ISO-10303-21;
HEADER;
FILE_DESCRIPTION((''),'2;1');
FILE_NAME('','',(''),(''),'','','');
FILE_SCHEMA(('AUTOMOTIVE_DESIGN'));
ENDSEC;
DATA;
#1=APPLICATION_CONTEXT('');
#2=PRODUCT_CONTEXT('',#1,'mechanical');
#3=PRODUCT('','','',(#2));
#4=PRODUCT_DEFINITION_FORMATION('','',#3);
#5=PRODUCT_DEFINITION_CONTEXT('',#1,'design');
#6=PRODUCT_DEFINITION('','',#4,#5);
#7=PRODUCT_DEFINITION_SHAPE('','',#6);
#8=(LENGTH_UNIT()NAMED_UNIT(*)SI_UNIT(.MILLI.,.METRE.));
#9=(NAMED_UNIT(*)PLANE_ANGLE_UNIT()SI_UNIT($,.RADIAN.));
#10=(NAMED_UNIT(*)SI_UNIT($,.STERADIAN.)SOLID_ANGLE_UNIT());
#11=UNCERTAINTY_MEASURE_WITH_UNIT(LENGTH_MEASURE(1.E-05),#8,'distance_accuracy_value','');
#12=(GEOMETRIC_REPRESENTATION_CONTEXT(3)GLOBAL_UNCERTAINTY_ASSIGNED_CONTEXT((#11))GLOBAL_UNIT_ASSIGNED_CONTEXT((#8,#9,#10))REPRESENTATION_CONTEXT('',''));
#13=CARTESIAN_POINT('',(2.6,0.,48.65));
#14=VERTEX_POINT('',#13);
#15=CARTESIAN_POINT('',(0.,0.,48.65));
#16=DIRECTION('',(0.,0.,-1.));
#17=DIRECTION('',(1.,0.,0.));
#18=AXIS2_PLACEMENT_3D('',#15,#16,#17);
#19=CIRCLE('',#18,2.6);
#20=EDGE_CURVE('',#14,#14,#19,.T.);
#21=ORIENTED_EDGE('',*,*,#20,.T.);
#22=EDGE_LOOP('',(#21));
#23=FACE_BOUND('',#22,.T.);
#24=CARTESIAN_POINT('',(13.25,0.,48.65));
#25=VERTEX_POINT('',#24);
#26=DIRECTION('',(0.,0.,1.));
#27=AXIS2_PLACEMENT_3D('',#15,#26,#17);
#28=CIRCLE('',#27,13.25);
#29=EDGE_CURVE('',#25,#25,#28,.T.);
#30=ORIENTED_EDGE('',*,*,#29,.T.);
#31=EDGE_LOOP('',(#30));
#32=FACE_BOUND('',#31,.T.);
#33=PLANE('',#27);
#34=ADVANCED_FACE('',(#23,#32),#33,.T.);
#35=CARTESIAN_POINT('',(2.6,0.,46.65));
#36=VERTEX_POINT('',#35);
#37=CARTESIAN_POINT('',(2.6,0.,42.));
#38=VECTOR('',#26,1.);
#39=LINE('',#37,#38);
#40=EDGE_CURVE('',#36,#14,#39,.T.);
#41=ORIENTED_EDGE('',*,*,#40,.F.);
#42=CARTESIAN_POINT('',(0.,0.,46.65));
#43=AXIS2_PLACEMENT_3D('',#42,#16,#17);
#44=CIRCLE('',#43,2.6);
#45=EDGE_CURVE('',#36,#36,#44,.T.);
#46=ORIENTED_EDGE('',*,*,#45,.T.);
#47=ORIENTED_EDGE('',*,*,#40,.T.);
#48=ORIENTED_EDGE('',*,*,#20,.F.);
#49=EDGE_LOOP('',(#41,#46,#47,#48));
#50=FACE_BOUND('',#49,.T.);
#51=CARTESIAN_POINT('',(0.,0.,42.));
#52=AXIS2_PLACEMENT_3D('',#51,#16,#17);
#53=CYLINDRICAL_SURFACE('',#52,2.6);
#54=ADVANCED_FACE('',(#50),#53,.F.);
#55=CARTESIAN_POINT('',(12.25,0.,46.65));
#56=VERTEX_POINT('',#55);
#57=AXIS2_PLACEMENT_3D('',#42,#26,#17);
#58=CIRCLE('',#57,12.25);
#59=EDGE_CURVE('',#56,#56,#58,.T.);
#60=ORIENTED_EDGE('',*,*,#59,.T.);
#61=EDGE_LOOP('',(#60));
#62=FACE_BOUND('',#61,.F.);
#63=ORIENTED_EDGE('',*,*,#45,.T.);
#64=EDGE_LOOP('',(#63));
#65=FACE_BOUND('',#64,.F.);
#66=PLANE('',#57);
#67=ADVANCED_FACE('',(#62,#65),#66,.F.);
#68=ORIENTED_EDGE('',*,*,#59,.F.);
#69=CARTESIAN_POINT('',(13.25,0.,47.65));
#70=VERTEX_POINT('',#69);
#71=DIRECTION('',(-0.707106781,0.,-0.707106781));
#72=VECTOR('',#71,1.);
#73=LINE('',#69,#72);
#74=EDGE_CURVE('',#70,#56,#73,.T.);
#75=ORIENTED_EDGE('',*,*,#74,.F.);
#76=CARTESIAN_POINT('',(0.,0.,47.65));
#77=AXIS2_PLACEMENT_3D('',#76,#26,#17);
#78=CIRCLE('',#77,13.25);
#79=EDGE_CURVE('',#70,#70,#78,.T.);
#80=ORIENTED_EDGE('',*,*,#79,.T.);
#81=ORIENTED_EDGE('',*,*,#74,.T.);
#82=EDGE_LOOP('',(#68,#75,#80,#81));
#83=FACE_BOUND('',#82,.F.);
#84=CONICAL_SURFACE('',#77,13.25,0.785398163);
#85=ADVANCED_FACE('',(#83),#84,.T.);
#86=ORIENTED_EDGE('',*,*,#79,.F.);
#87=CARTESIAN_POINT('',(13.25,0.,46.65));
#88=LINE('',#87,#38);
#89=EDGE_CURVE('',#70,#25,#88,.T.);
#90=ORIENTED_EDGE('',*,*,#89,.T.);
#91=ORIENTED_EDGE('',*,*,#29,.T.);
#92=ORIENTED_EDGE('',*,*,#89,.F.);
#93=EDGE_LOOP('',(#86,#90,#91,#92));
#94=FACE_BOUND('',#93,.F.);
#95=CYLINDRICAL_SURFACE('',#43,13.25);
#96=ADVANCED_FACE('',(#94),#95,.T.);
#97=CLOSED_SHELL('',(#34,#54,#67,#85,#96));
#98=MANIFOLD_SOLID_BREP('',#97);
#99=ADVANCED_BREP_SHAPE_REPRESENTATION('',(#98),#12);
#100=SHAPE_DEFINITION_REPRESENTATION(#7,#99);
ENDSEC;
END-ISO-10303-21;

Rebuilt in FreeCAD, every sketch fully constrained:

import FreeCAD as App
import Part
import Sketcher
from FreeCAD import Vector


def edges_at(feature, points):
    """Names of the edges that pass closest to the given points."""
    edges = feature.Shape.Edges
    near = lambda p: min(range(len(edges)), key=lambda i: edges[i].distToShape(Part.Vertex(*p))[0])
    return sorted({f"Edge{near(p) + 1}" for p in points})

doc = App.newDocument("Part")
body = doc.addObject("PartDesign::Body", "Body")

# Sketch on XY plane
sketch1 = body.newObject("Sketcher::SketchObject", "Sketch")
sketch1.AttachmentSupport = (doc.getObject("XY_Plane"), [""])
sketch1.MapMode = "FlatFace"
sketch1.AttachmentOffset = App.Placement(Vector(0, 0, 42), App.Rotation())
sketch1.addGeometry(Part.Circle(Vector(0, 0, 0), Vector(0, 0, 1), 2.6), False)
sketch1.addConstraint([
    Sketcher.Constraint("Coincident", 0, 3, -1, 1),
    Sketcher.Constraint("Diameter", 0, 5.2),
])
pad1 = body.newObject("PartDesign::Pad", "Pad")
pad1.Profile = sketch1
pad1.Length = 33
body2 = doc.addObject("PartDesign::Body", "Body001")

# Sketch on XY plane
sketch2 = body2.newObject("Sketcher::SketchObject", "Sketch001")
sketch2.AttachmentSupport = (doc.getObject("XY_Plane001"), [""])
sketch2.MapMode = "FlatFace"
sketch2.AttachmentOffset = App.Placement(Vector(0, 0, 46.65), App.Rotation())
sketch2.addGeometry(Part.Circle(Vector(0, 0, 0), Vector(0, 0, 1), 13.25), False)
sketch2.addConstraint([
    Sketcher.Constraint("Coincident", 0, 3, -1, 1),
    Sketcher.Constraint("Diameter", 0, 26.5),
])
pad2 = body2.newObject("PartDesign::Pad", "Pad001")
pad2.Profile = sketch2
pad2.Length = 2
doc.recompute()

boolean = body2.newObject("PartDesign::Boolean", "Boolean")
boolean.Type = "Cut"
boolean.addObjects([body])
doc.recompute()

chamfer = body2.newObject("PartDesign::Chamfer", "Chamfer")
chamfer.Base = (boolean, edges_at(boolean, [(-13.25, 0, 46.65)]))
chamfer.Size = 1

doc.recompute()
